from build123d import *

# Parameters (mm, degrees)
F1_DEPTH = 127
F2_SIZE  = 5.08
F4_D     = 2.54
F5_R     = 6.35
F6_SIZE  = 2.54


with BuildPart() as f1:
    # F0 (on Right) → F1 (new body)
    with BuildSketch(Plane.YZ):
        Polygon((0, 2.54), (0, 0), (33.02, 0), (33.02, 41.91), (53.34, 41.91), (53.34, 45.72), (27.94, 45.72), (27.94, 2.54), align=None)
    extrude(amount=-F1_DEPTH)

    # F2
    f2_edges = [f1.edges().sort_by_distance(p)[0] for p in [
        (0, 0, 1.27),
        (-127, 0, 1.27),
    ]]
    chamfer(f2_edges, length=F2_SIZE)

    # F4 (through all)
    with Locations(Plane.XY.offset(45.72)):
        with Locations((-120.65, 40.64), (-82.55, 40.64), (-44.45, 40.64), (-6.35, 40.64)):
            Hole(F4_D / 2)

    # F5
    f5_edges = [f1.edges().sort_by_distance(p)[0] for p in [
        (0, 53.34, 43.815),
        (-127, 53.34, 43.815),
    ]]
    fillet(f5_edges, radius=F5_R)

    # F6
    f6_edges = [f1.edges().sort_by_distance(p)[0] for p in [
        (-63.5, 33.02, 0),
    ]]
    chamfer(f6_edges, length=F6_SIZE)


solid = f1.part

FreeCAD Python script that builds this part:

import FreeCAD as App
import Part
import Sketcher
Q = App.Units.Quantity


def edges_at(feature, points):
    """Names of the edges that pass closest to the given points."""
    edges = feature.Shape.Edges
    near = lambda p: min(range(len(edges)), key=lambda i: edges[i].distToShape(Part.Vertex(*p))[0])
    return sorted({f"Edge{near(p) + 1}" for p in points})


def add_polygon(sketch, points):
    """Adds a closed chain of lines whose ends are joined by coincident constraints."""
    first, n = sketch.GeometryCount, len(points)
    for a, b in zip(points, points[1:] + points[:1]):
        sketch.addGeometry(Part.LineSegment(App.Vector(*a, 0), App.Vector(*b, 0)), False)
    for i in range(n):
        sketch.addConstraint(Sketcher.Constraint("Coincident", first + i, 2, first + (i + 1) % n, 1))

doc = App.newDocument("Part")
body = doc.addObject("PartDesign::Body", "Body")

# Sketch on YZ plane
sketch1 = body.newObject("Sketcher::SketchObject", "Sketch")
sketch1.AttachmentSupport = (doc.getObject("YZ_Plane"), [""])
sketch1.MapMode = "FlatFace"
add_polygon(sketch1, [(0, 2.54), (0, 0), (33.02, 0), (33.02, 41.91), (53.34, 41.91), (53.34, 45.72), (27.94, 45.72), (27.94, 2.54)])  # lines 0-7
sketch1.addConstraint([
    Sketcher.Constraint("Vertical", 0),
    Sketcher.Constraint("Horizontal", 1),
    Sketcher.Constraint("Vertical", 2),
    Sketcher.Constraint("Horizontal", 3),
    Sketcher.Constraint("Vertical", 4),
    Sketcher.Constraint("Horizontal", 5),
    Sketcher.Constraint("Vertical", 6),
    Sketcher.Constraint("Horizontal", 7),
    Sketcher.Constraint("Coincident", 0, 2, -1, 1),
    Sketcher.Constraint("DistanceX", 5, 2, 5, 1, Q("1 in")),
    Sketcher.Constraint("DistanceX", 1, 1, 1, 2, Q("1.3 in")),
    Sketcher.Constraint("DistanceX", 3, 1, 3, 2, Q("0.8 in")),
    Sketcher.Constraint("DistanceY", 0, 2, 0, 1, Q("0.1 in")),
    Sketcher.Constraint("DistanceY", 6, 2, 6, 1, Q("1.7 in")),
    Sketcher.Constraint("DistanceY", 2, 1, 2, 2, Q("1.65 in")),
])
pad1 = body.newObject("PartDesign::Pad", "Pad")
pad1.Profile = sketch1
pad1.Length = Q("5 in")
pad1.Reversed = True
doc.recompute()

chamfer = body.newObject("PartDesign::Chamfer", "Chamfer")
chamfer.Base = (pad1, edges_at(pad1, [(0, 0, 1.27), (-127, 0, 1.27)]))
chamfer.Size = Q("0.2 in")

# Sketch on XY plane
sketch2 = body.newObject("Sketcher::SketchObject", "Sketch001")
sketch2.AttachmentSupport = (doc.getObject("XY_Plane"), [""])
sketch2.MapMode = "FlatFace"
sketch2.AttachmentOffset = App.Placement(App.Vector(0, 0, 1.8 * 25.4), App.Rotation())
sketch2.addGeometry([
    Part.Circle(App.Vector(-120.65, 40.64, 0), App.Vector(0, 0, 1), 1.27),
    Part.Circle(App.Vector(-82.55, 40.64, 0), App.Vector(0, 0, 1), 1.27),
    Part.Circle(App.Vector(-44.45, 40.64, 0), App.Vector(0, 0, 1), 1.27),
    Part.Circle(App.Vector(-6.35, 40.64, 0), App.Vector(0, 0, 1), 1.27),
], False)
sketch2.addConstraint([
    Sketcher.Constraint("Equal", 0, 1),
    Sketcher.Constraint("Equal", 1, 2),
    Sketcher.Constraint("Equal", 2, 3),
    Sketcher.Constraint("Horizontal", 0, 3, 1, 3),
    Sketcher.Constraint("Horizontal", 1, 3, 2, 3),
    Sketcher.Constraint("Horizontal", 2, 3, 3, 3),
    Sketcher.Constraint("Diameter", 0, Q("0.1 in")),
    Sketcher.Constraint("DistanceX", 0, 3, 2, 3, Q("3 in")),
    Sketcher.Constraint("DistanceX", 1, 3, 3, 3, Q("3 in")),
    Sketcher.Constraint("DistanceY", -1, 1, 0, 3, Q("1.6 in")),
    Sketcher.Constraint("DistanceX", 0, 3, 1, 3, Q("1.5 in")),
    Sketcher.Constraint("DistanceX", 0, 3, -1, 1, Q("4.75 in")),
])
doc.recompute()
hole = body.newObject("PartDesign::Hole", "Hole")
hole.Profile = sketch2
hole.ThreadType = "None"
hole.Diameter = Q("0.1 in")
hole.DepthType = "ThroughAll"
doc.recompute()

fillet = body.newObject("PartDesign::Fillet", "Fillet")
fillet.Base = (hole, edges_at(hole, [(0, 53.34, 43.815), (-127, 53.34, 43.815)]))
fillet.Radius = Q("0.25 in")
doc.recompute()

chamfer2 = body.newObject("PartDesign::Chamfer", "Chamfer001")
chamfer2.Base = (fillet, edges_at(fillet, [(-63.5, 33.02, 0)]))
chamfer2.Size = Q("0.1 in")

doc.recompute()
